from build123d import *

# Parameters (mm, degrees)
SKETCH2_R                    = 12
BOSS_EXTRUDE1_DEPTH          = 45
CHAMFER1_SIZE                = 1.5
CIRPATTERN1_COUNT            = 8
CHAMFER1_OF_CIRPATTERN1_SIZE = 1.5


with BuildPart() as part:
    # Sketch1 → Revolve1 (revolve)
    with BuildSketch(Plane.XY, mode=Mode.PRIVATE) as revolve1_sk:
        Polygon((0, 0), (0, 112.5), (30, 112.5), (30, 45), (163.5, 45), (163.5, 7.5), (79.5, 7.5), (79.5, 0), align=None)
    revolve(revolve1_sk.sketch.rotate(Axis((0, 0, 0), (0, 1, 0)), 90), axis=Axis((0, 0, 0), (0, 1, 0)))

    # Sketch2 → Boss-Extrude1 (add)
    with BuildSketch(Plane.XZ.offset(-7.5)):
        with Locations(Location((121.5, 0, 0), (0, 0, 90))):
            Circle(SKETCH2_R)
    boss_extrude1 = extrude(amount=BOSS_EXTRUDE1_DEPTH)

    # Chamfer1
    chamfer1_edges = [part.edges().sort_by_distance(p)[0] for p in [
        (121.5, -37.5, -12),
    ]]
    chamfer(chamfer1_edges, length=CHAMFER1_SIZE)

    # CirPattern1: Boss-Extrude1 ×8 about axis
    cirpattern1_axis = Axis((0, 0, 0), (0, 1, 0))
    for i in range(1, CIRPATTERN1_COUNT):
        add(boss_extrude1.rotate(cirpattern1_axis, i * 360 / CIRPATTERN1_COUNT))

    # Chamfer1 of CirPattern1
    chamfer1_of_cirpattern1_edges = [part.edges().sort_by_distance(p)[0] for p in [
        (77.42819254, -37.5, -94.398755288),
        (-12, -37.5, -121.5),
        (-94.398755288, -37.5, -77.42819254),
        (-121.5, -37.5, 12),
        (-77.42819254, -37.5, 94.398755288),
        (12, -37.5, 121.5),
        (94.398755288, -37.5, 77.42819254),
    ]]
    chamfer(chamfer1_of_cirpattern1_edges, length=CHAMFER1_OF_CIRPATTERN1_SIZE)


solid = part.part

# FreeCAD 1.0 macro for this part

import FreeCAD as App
import Part
import Sketcher
from FreeCAD import Vector


def edges_at(feature, points):
    """Names of the edges that pass closest to the given points."""
    edges = feature.Shape.Edges
    near = lambda p: min(range(len(edges)), key=lambda i: edges[i].distToShape(Part.Vertex(*p))[0])
    return sorted({f"Edge{near(p) + 1}" for p in points})


def add_polygon(sketch, points):
    """Adds a closed chain of lines whose ends are joined by coincident constraints."""
    first, n = sketch.GeometryCount, len(points)
    for a, b in zip(points, points[1:] + points[:1]):
        sketch.addGeometry(Part.LineSegment(App.Vector(*a, 0), App.Vector(*b, 0)), False)
    for i in range(n):
        sketch.addConstraint(Sketcher.Constraint("Coincident", first + i, 2, first + (i + 1) % n, 1))

doc = App.newDocument("Part")
params = doc.addObject("Spreadsheet::Sheet", "Params")
for row, (alias, value) in enumerate([
    ("sketch1_width", "84 mm"),
    ("sketch1_width2", "30 mm"),
    ("sketch1_width3", "79.5 mm"),
    ("sketch1_height", "112.5 mm"),
    ("sketch1_height2", "7.5 mm"),
    ("revolution_angle", "360 deg"),
    ("sketch2_diameter", "24 mm"),
    ("pad1_length", "45 mm"),
    ("chamfer_size", "1.5 mm"),
    ("chamfer2_size", "1.5 mm"),
], start=1):
    params.set(f"A{row}", alias)
    params.set(f"B{row}", "=" + value)
    params.setAlias(f"B{row}", alias)

body = doc.addObject("PartDesign::Body", "Body")

# Sketch on XY plane
sketch1 = doc.addObject("Sketcher::SketchObject", "Sketch")
body.addObject(sketch1)
sketch1.AttachmentSupport = (doc.XY_Plane, [""])
sketch1.MapMode = "FlatFace"
add_polygon(sketch1, [(0, 112), (0, 0), (80, 0), (80, 8), (164, 8), (164, 45), (30, 45), (30, 112)])  # lines 0-7
sketch1.addConstraint([
    Sketcher.Constraint("Vertical", 0),
    Sketcher.Constraint("Horizontal", 1),
    Sketcher.Constraint("Vertical", 2),
    Sketcher.Constraint("Horizontal", 3),
    Sketcher.Constraint("Vertical", 4),
    Sketcher.Constraint("Horizontal", 5),
    Sketcher.Constraint("Vertical", 6),
    Sketcher.Constraint("Horizontal", 7),
    Sketcher.Constraint("Coincident", 0, 2, -1, 1),
    Sketcher.Constraint("DistanceX", 3, 1, 3, 2, 84.0),
    Sketcher.Constraint("DistanceX", 7, 2, 7, 1, 30.0),
    Sketcher.Constraint("DistanceX", 1, 1, 1, 2, 79.5),
    Sketcher.Constraint("DistanceY", 0, 2, 0, 1, 112.5),
    Sketcher.Constraint("DistanceY", 2, 1, 2, 2, 7.5),
    Sketcher.Constraint("DistanceY", 4, 1, 4, 2, 37.5),
])
sketch1.setExpression("Constraints[17]", "Params.sketch1_width")
sketch1.setExpression("Constraints[18]", "Params.sketch1_width2")
sketch1.setExpression("Constraints[19]", "Params.sketch1_width3")
sketch1.setExpression("Constraints[20]", "Params.sketch1_height")
sketch1.setExpression("Constraints[21]", "Params.sketch1_height2")
revolution = doc.addObject("PartDesign::Revolution", "Revolution")
body.addObject(revolution)
revolution.Profile = sketch1
revolution.ReferenceAxis = (sketch1, ["V_Axis"])
revolution.setExpression("Angle", "Params.revolution_angle")

# Sketch on XZ plane
sketch2 = doc.addObject("Sketcher::SketchObject", "Sketch001")
body.addObject(sketch2)
sketch2.AttachmentSupport = (doc.XZ_Plane, [""])
sketch2.MapMode = "FlatFace"
sketch2.AttachmentOffset = App.Placement(Vector(0, 0, -7.5), App.Rotation())
sketch2.addGeometry(Part.Circle(Vector(122, 0, 0), Vector(0, 0, 1), 12), False)
sketch2.addConstraint([
    Sketcher.Constraint("PointOnObject", 0, 3, -1),
    Sketcher.Constraint("Diameter", 0, 24.0),
    Sketcher.Constraint("DistanceX", -1, 1, 0, 3, 121.5),
])
sketch2.setExpression("Constraints[1]", "Params.sketch2_diameter")
pad1 = doc.addObject("PartDesign::Pad", "Pad")
body.addObject(pad1)
pad1.Profile = sketch2
pad1.setExpression("Length", "Params.pad1_length")
doc.recompute()

chamfer = doc.addObject("PartDesign::Chamfer", "Chamfer")
body.addObject(chamfer)
chamfer.Base = (pad1, edges_at(pad1, [(121.5, -37.5, -12)]))
chamfer.setExpression("Size", "Params.chamfer_size")
doc.recompute()

polarpattern = doc.addObject("PartDesign::PolarPattern", "PolarPattern")
body.addObject(polarpattern)
polarpattern.Originals = [pad1]
polarpattern.Axis = (doc.Y_Axis, [""])
polarpattern.Angle = 360
polarpattern.Occurrences = 8
body.Tip = polarpattern
doc.recompute()

chamfer2 = doc.addObject("PartDesign::Chamfer", "Chamfer001")
body.addObject(chamfer2)
chamfer2.Base = (polarpattern, edges_at(polarpattern, [
    (77.428, -37.5, -94.399),
    (-12, -37.5, -121.5),
    (-94.399, -37.5, -77.428),
    (-121.5, -37.5, 12),
    (-77.428, -37.5, 94.399),
    (12, -37.5, 121.5),
    (94.399, -37.5, 77.428),
]))
chamfer2.setExpression("Size", "Params.chamfer2_size")

doc.recompute()
